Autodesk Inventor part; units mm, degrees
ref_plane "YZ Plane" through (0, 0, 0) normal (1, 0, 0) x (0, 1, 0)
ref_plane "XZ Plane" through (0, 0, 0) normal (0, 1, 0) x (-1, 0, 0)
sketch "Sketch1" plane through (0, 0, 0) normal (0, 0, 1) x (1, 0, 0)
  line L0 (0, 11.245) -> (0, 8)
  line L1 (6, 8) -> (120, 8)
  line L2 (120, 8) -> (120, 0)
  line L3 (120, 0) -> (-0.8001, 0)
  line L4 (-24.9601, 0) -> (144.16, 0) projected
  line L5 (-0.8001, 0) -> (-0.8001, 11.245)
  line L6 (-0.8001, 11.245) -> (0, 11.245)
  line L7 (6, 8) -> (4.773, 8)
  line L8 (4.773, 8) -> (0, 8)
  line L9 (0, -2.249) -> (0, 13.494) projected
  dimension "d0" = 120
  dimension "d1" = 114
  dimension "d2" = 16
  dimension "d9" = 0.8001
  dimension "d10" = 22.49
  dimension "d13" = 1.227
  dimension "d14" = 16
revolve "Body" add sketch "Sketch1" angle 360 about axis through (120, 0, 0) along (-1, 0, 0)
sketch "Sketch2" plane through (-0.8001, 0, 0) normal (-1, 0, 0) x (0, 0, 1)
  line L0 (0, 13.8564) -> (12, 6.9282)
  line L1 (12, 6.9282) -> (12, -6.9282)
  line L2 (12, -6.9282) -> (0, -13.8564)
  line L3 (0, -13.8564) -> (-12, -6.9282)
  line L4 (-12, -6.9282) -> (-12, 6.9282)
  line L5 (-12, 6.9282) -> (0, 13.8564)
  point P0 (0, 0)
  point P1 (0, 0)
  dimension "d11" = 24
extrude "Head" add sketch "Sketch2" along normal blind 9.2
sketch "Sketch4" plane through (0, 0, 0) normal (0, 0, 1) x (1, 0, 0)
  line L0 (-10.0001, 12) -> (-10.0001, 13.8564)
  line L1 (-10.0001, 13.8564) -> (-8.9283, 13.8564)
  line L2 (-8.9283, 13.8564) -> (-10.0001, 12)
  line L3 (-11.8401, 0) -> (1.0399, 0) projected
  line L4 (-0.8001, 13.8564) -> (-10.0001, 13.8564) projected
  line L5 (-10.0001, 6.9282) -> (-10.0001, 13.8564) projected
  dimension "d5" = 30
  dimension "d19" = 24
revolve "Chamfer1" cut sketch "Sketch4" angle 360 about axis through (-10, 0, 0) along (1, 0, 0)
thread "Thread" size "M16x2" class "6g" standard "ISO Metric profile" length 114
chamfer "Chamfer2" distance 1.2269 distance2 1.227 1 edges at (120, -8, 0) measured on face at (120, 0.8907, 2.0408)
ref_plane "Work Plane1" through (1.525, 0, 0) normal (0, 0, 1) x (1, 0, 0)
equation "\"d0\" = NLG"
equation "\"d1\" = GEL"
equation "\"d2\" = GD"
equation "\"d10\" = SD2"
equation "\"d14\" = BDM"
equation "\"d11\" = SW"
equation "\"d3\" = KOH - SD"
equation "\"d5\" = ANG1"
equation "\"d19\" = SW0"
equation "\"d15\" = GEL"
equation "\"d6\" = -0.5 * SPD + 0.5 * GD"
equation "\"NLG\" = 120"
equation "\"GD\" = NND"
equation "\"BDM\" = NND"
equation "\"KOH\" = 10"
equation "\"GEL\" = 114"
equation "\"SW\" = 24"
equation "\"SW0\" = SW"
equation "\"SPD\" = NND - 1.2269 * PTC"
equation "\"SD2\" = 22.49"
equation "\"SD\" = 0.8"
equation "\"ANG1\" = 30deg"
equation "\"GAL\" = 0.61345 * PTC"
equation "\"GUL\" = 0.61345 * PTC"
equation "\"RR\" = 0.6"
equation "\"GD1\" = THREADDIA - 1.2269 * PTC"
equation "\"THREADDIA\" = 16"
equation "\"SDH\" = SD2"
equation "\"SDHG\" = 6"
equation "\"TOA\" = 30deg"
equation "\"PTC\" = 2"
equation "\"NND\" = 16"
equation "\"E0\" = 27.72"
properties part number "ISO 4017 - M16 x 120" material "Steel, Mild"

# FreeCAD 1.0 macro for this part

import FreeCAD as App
import Part
import Sketcher
from FreeCAD import Vector
Q = App.Units.Quantity


def edges_at(feature, points):
    """Names of the edges that pass closest to the given points."""
    edges = feature.Shape.Edges
    near = lambda p: min(range(len(edges)), key=lambda i: edges[i].distToShape(Part.Vertex(*p))[0])
    return sorted({f"Edge{near(p) + 1}" for p in points})

doc = App.newDocument("Part")
body = doc.addObject("PartDesign::Body", "Body")

# Sketch on XY plane
sketch1 = body.newObject("Sketcher::SketchObject", "Sketch")
sketch1.AttachmentSupport = (doc.getObject("XY_Plane"), [""])
sketch1.MapMode = "FlatFace"
sketch1.addGeometry(Part.LineSegment(Vector(0, 8, 0), Vector(0, 11.245, 0)), False)
sketch1.addGeometry(Part.LineSegment(Vector(0, 11.245, 0), Vector(-0.8001, 11.245, 0)), False)
sketch1.addGeometry(Part.LineSegment(Vector(-0.8001, 11.245, 0), Vector(-0.8001, 0, 0)), False)
sketch1.addGeometry(Part.LineSegment(Vector(-0.8001, 0, 0), Vector(120, 0, 0)), False)
sketch1.addGeometry(Part.LineSegment(Vector(120, 0, 0), Vector(120, 8, 0)), False)
sketch1.addGeometry(Part.LineSegment(Vector(120, 8, 0), Vector(0, 8, 0)), False)
sketch1.addConstraint(Sketcher.Constraint("Coincident", 0, 2, 1, 1))
sketch1.addConstraint(Sketcher.Constraint("Coincident", 1, 2, 2, 1))
sketch1.addConstraint(Sketcher.Constraint("Coincident", 2, 2, 3, 1))
sketch1.addConstraint(Sketcher.Constraint("Coincident", 3, 2, 4, 1))
sketch1.addConstraint(Sketcher.Constraint("Coincident", 4, 2, 5, 1))
sketch1.addConstraint(Sketcher.Constraint("Coincident", 5, 2, 0, 1))
sketch1.addConstraint(Sketcher.Constraint("Vertical", 0))
sketch1.addConstraint(Sketcher.Constraint("Horizontal", 1))
sketch1.addConstraint(Sketcher.Constraint("Vertical", 2))
sketch1.addConstraint(Sketcher.Constraint("Horizontal", 3))
sketch1.addConstraint(Sketcher.Constraint("Vertical", 4))
sketch1.addConstraint(Sketcher.Constraint("Horizontal", 5))
sketch1.addConstraint(Sketcher.Constraint("PointOnObject", 0, 2, -2))
sketch1.addConstraint(Sketcher.Constraint("PointOnObject", 2, 2, -1))
sketch1.addConstraint(Sketcher.Constraint("DistanceX", 5, 2, 5, 1, Q("120 mm")))
sketch1.addConstraint(Sketcher.Constraint("DistanceX", 1, 2, 1, 1, Q("0.8 mm")))
sketch1.addConstraint(Sketcher.Constraint("DistanceY", 4, 1, 4, 2, Q("8 mm")))
sketch1.addConstraint(Sketcher.Constraint("DistanceY", 0, 1, 0, 2, Q("3.245 mm")))
revolution = body.newObject("PartDesign::Revolution", "Revolution")
revolution.Profile = sketch1
revolution.ReferenceAxis = (sketch1, ["H_Axis"])
revolution.Angle = 360

# Sketch on YZ plane
sketch2 = body.newObject("Sketcher::SketchObject", "Sketch001")
sketch2.AttachmentSupport = (doc.getObject("YZ_Plane"), [""])
sketch2.MapMode = "FlatFace"
sketch2.AttachmentOffset = App.Placement(Vector(0, 0, -0.8001), App.Rotation())
sketch2.addGeometry(Part.LineSegment(Vector(6.9282, 12, 0), Vector(13.8564, 0, 0)), False)
sketch2.addGeometry(Part.LineSegment(Vector(13.8564, 0, 0), Vector(6.9282, -12, 0)), False)
sketch2.addGeometry(Part.LineSegment(Vector(6.9282, -12, 0), Vector(-6.9282, -12, 0)), False)
sketch2.addGeometry(Part.LineSegment(Vector(-6.9282, -12, 0), Vector(-13.8564, 0, 0)), False)
sketch2.addGeometry(Part.LineSegment(Vector(-13.8564, 0, 0), Vector(-6.9282, 12, 0)), False)
sketch2.addGeometry(Part.LineSegment(Vector(-6.9282, 12, 0), Vector(6.9282, 12, 0)), False)
sketch2.addConstraint(Sketcher.Constraint("Coincident", 0, 2, 1, 1))
sketch2.addConstraint(Sketcher.Constraint("Coincident", 1, 2, 2, 1))
sketch2.addConstraint(Sketcher.Constraint("Coincident", 2, 2, 3, 1))
sketch2.addConstraint(Sketcher.Constraint("Coincident", 3, 2, 4, 1))
sketch2.addConstraint(Sketcher.Constraint("Coincident", 4, 2, 5, 1))
sketch2.addConstraint(Sketcher.Constraint("Coincident", 5, 2, 0, 1))
sketch2.addConstraint(Sketcher.Constraint("Horizontal", 2))
sketch2.addConstraint(Sketcher.Constraint("Horizontal", 5))
sketch2.addConstraint(Sketcher.Constraint("Symmetric", 0, 2, 3, 2, -1, 1))
sketch2.addConstraint(Sketcher.Constraint("Symmetric", 1, 2, 4, 2, -1, 1))
sketch2.addConstraint(Sketcher.Constraint("PointOnObject", 0, 2, -1))
sketch2.addConstraint(Sketcher.Constraint("Parallel", 0, 3))
sketch2.addConstraint(Sketcher.Constraint("Vertical", 2, 2, 4, 2))
sketch2.addConstraint(Sketcher.Constraint("DistanceY", 2, 2, 4, 2, Q("24 mm")))
sketch2.addConstraint(Sketcher.Constraint("Angle", 0, Q("-60 deg")))
sketch2.addConstraint(Sketcher.Constraint("DistanceX", 2, 2, 2, 1, Q("13.8564 mm")))
pad1 = body.newObject("PartDesign::Pad", "Pad")
pad1.Profile = sketch2
pad1.Length = 9.2
pad1.Reversed = True

# Sketch on XY plane
sketch3 = body.newObject("Sketcher::SketchObject", "Sketch002")
sketch3.AttachmentSupport = (doc.getObject("XY_Plane"), [""])
sketch3.MapMode = "FlatFace"
sketch3.addGeometry(Part.LineSegment(Vector(-10.0001, 13.8564, 0), Vector(-10.0001, 12, 0)), False)
sketch3.addGeometry(Part.LineSegment(Vector(-10.0001, 12, 0), Vector(-8.9283, 13.8564, 0)), False)
sketch3.addGeometry(Part.LineSegment(Vector(-8.9283, 13.8564, 0), Vector(-10.0001, 13.8564, 0)), False)
sketch3.addConstraint(Sketcher.Constraint("Coincident", 0, 2, 1, 1))
sketch3.addConstraint(Sketcher.Constraint("Coincident", 1, 2, 2, 1))
sketch3.addConstraint(Sketcher.Constraint("Coincident", 2, 2, 0, 1))
sketch3.addConstraint(Sketcher.Constraint("Vertical", 0))
sketch3.addConstraint(Sketcher.Constraint("Horizontal", 2))
sketch3.addConstraint(Sketcher.Constraint("Angle", 1, Q("59.9998 deg")))
sketch3.addConstraint(Sketcher.Constraint("DistanceX", 0, 2, -1, 1, Q("10 mm")))
sketch3.addConstraint(Sketcher.Constraint("DistanceY", -1, 1, 0, 2, Q("12 mm")))
sketch3.addConstraint(Sketcher.Constraint("DistanceX", 2, 2, 2, 1, Q("1.0718 mm")))
groove = body.newObject("PartDesign::Groove", "Groove")
groove.Profile = sketch3
groove.ReferenceAxis = (sketch3, ["H_Axis"])
groove.Angle = 360
doc.recompute()

chamfer = body.newObject("PartDesign::Chamfer", "Chamfer")
chamfer.Base = (groove, edges_at(groove, [(120, -8, 0)]))
chamfer.ChamferType = "Two distances"
chamfer.Size = 1.2269
chamfer.Size2 = 1.227

doc.recompute()
